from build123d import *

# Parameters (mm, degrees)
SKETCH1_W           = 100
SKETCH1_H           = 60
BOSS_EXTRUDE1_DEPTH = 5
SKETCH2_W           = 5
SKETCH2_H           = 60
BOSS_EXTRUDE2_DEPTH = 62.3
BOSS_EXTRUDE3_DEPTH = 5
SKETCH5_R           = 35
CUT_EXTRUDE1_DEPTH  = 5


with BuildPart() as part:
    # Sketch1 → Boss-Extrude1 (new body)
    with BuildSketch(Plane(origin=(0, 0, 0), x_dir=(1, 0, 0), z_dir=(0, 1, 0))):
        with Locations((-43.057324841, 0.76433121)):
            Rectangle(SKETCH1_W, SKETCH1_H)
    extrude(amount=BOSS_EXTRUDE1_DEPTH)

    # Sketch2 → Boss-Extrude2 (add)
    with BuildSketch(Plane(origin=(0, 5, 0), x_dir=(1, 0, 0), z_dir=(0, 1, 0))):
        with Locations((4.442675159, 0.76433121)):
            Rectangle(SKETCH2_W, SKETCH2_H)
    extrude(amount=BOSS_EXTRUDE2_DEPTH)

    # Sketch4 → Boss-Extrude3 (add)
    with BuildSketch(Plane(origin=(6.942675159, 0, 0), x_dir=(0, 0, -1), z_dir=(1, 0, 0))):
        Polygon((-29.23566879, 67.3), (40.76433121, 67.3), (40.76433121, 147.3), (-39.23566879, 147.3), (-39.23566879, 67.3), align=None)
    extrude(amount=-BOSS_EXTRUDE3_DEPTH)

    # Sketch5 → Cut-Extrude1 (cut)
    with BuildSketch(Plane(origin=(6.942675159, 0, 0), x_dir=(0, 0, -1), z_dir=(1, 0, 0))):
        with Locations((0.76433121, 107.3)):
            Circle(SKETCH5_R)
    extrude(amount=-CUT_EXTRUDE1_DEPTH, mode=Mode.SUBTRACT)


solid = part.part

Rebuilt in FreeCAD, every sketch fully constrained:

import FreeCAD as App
import Part
import Sketcher

doc = App.newDocument("Part")
params = doc.addObject("Spreadsheet::Sheet", "Params")
for row, (alias, value) in enumerate([
    ("sketch1_width", "100 mm"),
    ("sketch1_height", "60 mm"),
    ("pad1_length", "5 mm"),
    ("sketch2_width", "5 mm"),
    ("sketch2_height", "60 mm"),
    ("pad2_length", "62.3 mm"),
    ("sketch3_width", "80 mm"),
    ("pad3_length", "5 mm"),
    ("sketch4_diameter", "70 mm"),
    ("pocket1_length", "5 mm"),
], start=1):
    params.set(f"A{row}", alias)
    params.set(f"B{row}", "=" + value)
    params.setAlias(f"B{row}", alias)

body = doc.addObject("PartDesign::Body", "Body")

sketch1 = body.newObject("Sketcher::SketchObject", "Sketch")
sketch1.AttachmentSupport = (doc.getObject("XZ_Plane"), [""])
sketch1.MapMode = "FlatFace"
sketch1.addGeometry([
    Part.LineSegment(App.Vector(-93, -31, 0), App.Vector(-93, 29, 0)),
    Part.LineSegment(App.Vector(-93, 29, 0), App.Vector(7, 29, 0)),
    Part.LineSegment(App.Vector(7, 29, 0), App.Vector(7, -31, 0)),
    Part.LineSegment(App.Vector(7, -31, 0), App.Vector(-93, -31, 0)),
], False)
sketch1.addConstraint([
    Sketcher.Constraint("Coincident", 0, 2, 1, 1),
    Sketcher.Constraint("Coincident", 1, 2, 2, 1),
    Sketcher.Constraint("Coincident", 2, 2, 3, 1),
    Sketcher.Constraint("Coincident", 3, 2, 0, 1),
    Sketcher.Constraint("Vertical", 0),
    Sketcher.Constraint("Horizontal", 1),
    Sketcher.Constraint("Vertical", 2),
    Sketcher.Constraint("Horizontal", 3),
    Sketcher.Constraint("DistanceX", 1, 1, 1, 2, 100.0),
    Sketcher.Constraint("DistanceY", 0, 1, 0, 2, 60.0),
    Sketcher.Constraint("DistanceY", -1, 1, 0, 2, 29.235669),
    Sketcher.Constraint("DistanceX", 0, 2, -1, 1, 93.057325),
])
sketch1.setExpression("Constraints[8]", "Params.sketch1_width")
sketch1.setExpression("Constraints[9]", "Params.sketch1_height")
pad1 = body.newObject("PartDesign::Pad", "Pad")
pad1.Profile = sketch1
pad1.setExpression("Length", "Params.pad1_length")
pad1.Reversed = True

sketch2 = body.newObject("Sketcher::SketchObject", "Sketch001")
sketch2.AttachmentSupport = (doc.getObject("XZ_Plane"), [""])
sketch2.MapMode = "FlatFace"
sketch2.AttachmentOffset = App.Placement(App.Vector(0, 0, -5), App.Rotation())
sketch2.addGeometry([
    Part.LineSegment(App.Vector(2, -31, 0), App.Vector(2, 29, 0)),
    Part.LineSegment(App.Vector(2, 29, 0), App.Vector(7, 29, 0)),
    Part.LineSegment(App.Vector(7, 29, 0), App.Vector(7, -31, 0)),
    Part.LineSegment(App.Vector(7, -31, 0), App.Vector(2, -31, 0)),
], False)
sketch2.addConstraint([
    Sketcher.Constraint("Coincident", 0, 2, 1, 1),
    Sketcher.Constraint("Coincident", 1, 2, 2, 1),
    Sketcher.Constraint("Coincident", 2, 2, 3, 1),
    Sketcher.Constraint("Coincident", 3, 2, 0, 1),
    Sketcher.Constraint("Vertical", 0),
    Sketcher.Constraint("Horizontal", 1),
    Sketcher.Constraint("Vertical", 2),
    Sketcher.Constraint("Horizontal", 3),
    Sketcher.Constraint("DistanceX", 1, 1, 1, 2, 5.0),
    Sketcher.Constraint("DistanceY", 0, 1, 0, 2, 60.0),
    Sketcher.Constraint("DistanceY", -1, 1, 0, 2, 29.235669),
    Sketcher.Constraint("DistanceX", -1, 1, 0, 2, 1.942675),
])
sketch2.setExpression("Constraints[8]", "Params.sketch2_width")
sketch2.setExpression("Constraints[9]", "Params.sketch2_height")
pad2 = body.newObject("PartDesign::Pad", "Pad001")
pad2.Profile = sketch2
pad2.setExpression("Length", "Params.pad2_length")
pad2.Reversed = True

sketch3 = body.newObject("Sketcher::SketchObject", "Sketch002")
sketch3.AttachmentSupport = (doc.getObject("YZ_Plane"), [""])
sketch3.MapMode = "FlatFace"
sketch3.AttachmentOffset = App.Placement(App.Vector(0, 0, 6.942675), App.Rotation())
sketch3.addGeometry([
    Part.LineSegment(App.Vector(67, -41, 0), App.Vector(147, -41, 0)),
    Part.LineSegment(App.Vector(147, -41, 0), App.Vector(147, 39, 0)),
    Part.LineSegment(App.Vector(147, 39, 0), App.Vector(67, 39, 0)),
    Part.LineSegment(App.Vector(67, 39, 0), App.Vector(67, -41, 0)),
], False)
sketch3.addConstraint([
    Sketcher.Constraint("Coincident", 0, 2, 1, 1),
    Sketcher.Constraint("Coincident", 1, 2, 2, 1),
    Sketcher.Constraint("Coincident", 2, 2, 3, 1),
    Sketcher.Constraint("Coincident", 3, 2, 0, 1),
    Sketcher.Constraint("Horizontal", 0),
    Sketcher.Constraint("Vertical", 1),
    Sketcher.Constraint("Horizontal", 2),
    Sketcher.Constraint("Vertical", 3),
    Sketcher.Constraint("Equal", 2, 1),
    Sketcher.Constraint("DistanceX", 0, 1, 0, 2, 80.0),
    Sketcher.Constraint("DistanceX", -1, 1, 0, 2, 147.3),
    Sketcher.Constraint("DistanceY", 0, 2, -1, 1, 40.764331),
])
sketch3.setExpression("Constraints[9]", "Params.sketch3_width")
pad3 = body.newObject("PartDesign::Pad", "Pad002")
pad3.Profile = sketch3
pad3.setExpression("Length", "Params.pad3_length")
pad3.Reversed = True

sketch4 = body.newObject("Sketcher::SketchObject", "Sketch003")
sketch4.AttachmentSupport = (doc.getObject("YZ_Plane"), [""])
sketch4.MapMode = "FlatFace"
sketch4.AttachmentOffset = App.Placement(App.Vector(0, 0, 6.942675), App.Rotation())
sketch4.addGeometry(Part.Circle(App.Vector(107, -1, 0), App.Vector(0, 0, 1), 35), False)
sketch4.addConstraint([
    Sketcher.Constraint("Diameter", 0, 70.0),
    Sketcher.Constraint("DistanceX", -1, 1, 0, 3, 107.3),
    Sketcher.Constraint("DistanceY", 0, 3, -1, 1, 0.764331),
])
sketch4.setExpression("Constraints[0]", "Params.sketch4_diameter")
pocket1 = body.newObject("PartDesign::Pocket", "Pocket")
pocket1.Profile = sketch4
pocket1.setExpression("Length", "Params.pocket1_length")

doc.recompute()
